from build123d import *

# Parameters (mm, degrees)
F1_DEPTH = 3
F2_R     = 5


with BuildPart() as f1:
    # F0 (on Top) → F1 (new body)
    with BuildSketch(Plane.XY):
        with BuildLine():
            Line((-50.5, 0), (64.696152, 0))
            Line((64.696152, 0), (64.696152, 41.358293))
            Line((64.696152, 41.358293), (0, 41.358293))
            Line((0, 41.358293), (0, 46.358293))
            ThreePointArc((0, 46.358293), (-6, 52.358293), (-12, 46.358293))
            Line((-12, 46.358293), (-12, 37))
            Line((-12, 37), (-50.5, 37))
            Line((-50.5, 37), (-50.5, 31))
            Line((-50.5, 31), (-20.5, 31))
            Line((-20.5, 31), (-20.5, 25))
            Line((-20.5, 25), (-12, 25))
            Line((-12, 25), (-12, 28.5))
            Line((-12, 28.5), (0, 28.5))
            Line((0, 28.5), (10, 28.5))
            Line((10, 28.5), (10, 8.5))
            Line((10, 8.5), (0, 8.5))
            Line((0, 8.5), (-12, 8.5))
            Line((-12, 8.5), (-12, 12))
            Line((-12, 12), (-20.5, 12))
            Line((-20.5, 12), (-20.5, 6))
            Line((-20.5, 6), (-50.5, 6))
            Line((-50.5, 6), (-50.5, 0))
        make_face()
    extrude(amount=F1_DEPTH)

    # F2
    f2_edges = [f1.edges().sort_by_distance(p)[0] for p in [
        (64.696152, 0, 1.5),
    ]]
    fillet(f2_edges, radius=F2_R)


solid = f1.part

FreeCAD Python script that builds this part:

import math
import FreeCAD as App
import Part
import Sketcher
Q = App.Units.Quantity


def edges_at(feature, points):
    """Names of the edges that pass closest to the given points."""
    edges = feature.Shape.Edges
    near = lambda p: min(range(len(edges)), key=lambda i: edges[i].distToShape(Part.Vertex(*p))[0])
    return sorted({f"Edge{near(p) + 1}" for p in points})

doc = App.newDocument("Part")
params = doc.addObject("Spreadsheet::Sheet", "Params")
for row, (alias, value) in enumerate([
    ("sketch1_radius", "6 mm"),
    ("sketch1_width", "30 mm"),
    ("sketch1_width2", "22 mm"),
    ("sketch1_height", "5 mm"),
    ("sketch1_height2", "6 mm"),
    ("pad1_length", "3 mm"),
    ("fillet_radius", "5 mm"),
], start=1):
    params.set(f"A{row}", alias)
    params.set(f"B{row}", "=" + value)
    params.setAlias(f"B{row}", alias)

body = doc.addObject("PartDesign::Body", "Body")

# Sketch on XY plane
sketch1 = body.newObject("Sketcher::SketchObject", "Sketch")
sketch1.AttachmentSupport = (doc.getObject("XY_Plane"), [""])
sketch1.MapMode = "FlatFace"
sketch1.addGeometry(Part.LineSegment(App.Vector(-50.5, 0, 0), App.Vector(64.7, 0, 0)), False)
sketch1.addGeometry(Part.LineSegment(App.Vector(64.7, 0, 0), App.Vector(64.7, 41.4, 0)), False)
sketch1.addGeometry(Part.LineSegment(App.Vector(64.7, 41.4, 0), App.Vector(0, 41.4, 0)), False)
sketch1.addGeometry(Part.LineSegment(App.Vector(0, 41.4, 0), App.Vector(0, 46.4, 0)), False)
sketch1.addGeometry(Part.ArcOfCircle(Part.Circle(App.Vector(-6, 46.4, 0), App.Vector(0, 0, 1), 6), math.radians(0), math.radians(180)), False)
sketch1.addGeometry(Part.LineSegment(App.Vector(-12, 46.4, 0), App.Vector(-12, 37, 0)), False)
sketch1.addGeometry(Part.LineSegment(App.Vector(-12, 37, 0), App.Vector(-50.5, 37, 0)), False)
sketch1.addGeometry(Part.LineSegment(App.Vector(-50.5, 37, 0), App.Vector(-50.5, 31, 0)), False)
sketch1.addGeometry(Part.LineSegment(App.Vector(-50.5, 31, 0), App.Vector(-20.5, 31, 0)), False)
sketch1.addGeometry(Part.LineSegment(App.Vector(-20.5, 31, 0), App.Vector(-20.5, 25, 0)), False)
sketch1.addGeometry(Part.LineSegment(App.Vector(-20.5, 25, 0), App.Vector(-12, 25, 0)), False)
sketch1.addGeometry(Part.LineSegment(App.Vector(-12, 25, 0), App.Vector(-12, 28.5, 0)), False)
sketch1.addGeometry(Part.LineSegment(App.Vector(-12, 28.5, 0), App.Vector(10, 28.5, 0)), False)
sketch1.addGeometry(Part.LineSegment(App.Vector(10, 28.5, 0), App.Vector(10, 8.5, 0)), False)
sketch1.addGeometry(Part.LineSegment(App.Vector(10, 8.5, 0), App.Vector(-12, 8.5, 0)), False)
sketch1.addGeometry(Part.LineSegment(App.Vector(-12, 8.5, 0), App.Vector(-12, 12, 0)), False)
sketch1.addGeometry(Part.LineSegment(App.Vector(-12, 12, 0), App.Vector(-20.5, 12, 0)), False)
sketch1.addGeometry(Part.LineSegment(App.Vector(-20.5, 12, 0), App.Vector(-20.5, 6, 0)), False)
sketch1.addGeometry(Part.LineSegment(App.Vector(-20.5, 6, 0), App.Vector(-50.5, 6, 0)), False)
sketch1.addGeometry(Part.LineSegment(App.Vector(-50.5, 6, 0), App.Vector(-50.5, 0, 0)), False)
sketch1.addConstraint(Sketcher.Constraint("Coincident", 0, 2, 1, 1))
sketch1.addConstraint(Sketcher.Constraint("Coincident", 1, 2, 2, 1))
sketch1.addConstraint(Sketcher.Constraint("Coincident", 2, 2, 3, 1))
sketch1.addConstraint(Sketcher.Constraint("Tangent", 3, 2, 4, 1))
sketch1.addConstraint(Sketcher.Constraint("Tangent", 4, 2, 5, 1))
sketch1.addConstraint(Sketcher.Constraint("Coincident", 5, 2, 6, 1))
sketch1.addConstraint(Sketcher.Constraint("Coincident", 6, 2, 7, 1))
sketch1.addConstraint(Sketcher.Constraint("Coincident", 7, 2, 8, 1))
sketch1.addConstraint(Sketcher.Constraint("Coincident", 8, 2, 9, 1))
sketch1.addConstraint(Sketcher.Constraint("Coincident", 9, 2, 10, 1))
sketch1.addConstraint(Sketcher.Constraint("Coincident", 10, 2, 11, 1))
sketch1.addConstraint(Sketcher.Constraint("Coincident", 11, 2, 12, 1))
sketch1.addConstraint(Sketcher.Constraint("Coincident", 12, 2, 13, 1))
sketch1.addConstraint(Sketcher.Constraint("Coincident", 13, 2, 14, 1))
sketch1.addConstraint(Sketcher.Constraint("Coincident", 14, 2, 15, 1))
sketch1.addConstraint(Sketcher.Constraint("Coincident", 15, 2, 16, 1))
sketch1.addConstraint(Sketcher.Constraint("Coincident", 16, 2, 17, 1))
sketch1.addConstraint(Sketcher.Constraint("Coincident", 17, 2, 18, 1))
sketch1.addConstraint(Sketcher.Constraint("Coincident", 18, 2, 19, 1))
sketch1.addConstraint(Sketcher.Constraint("Coincident", 19, 2, 0, 1))
sketch1.addConstraint(Sketcher.Constraint("Horizontal", 0))
sketch1.addConstraint(Sketcher.Constraint("Vertical", 1))
sketch1.addConstraint(Sketcher.Constraint("Horizontal", 2))
sketch1.addConstraint(Sketcher.Constraint("Vertical", 3))
sketch1.addConstraint(Sketcher.Constraint("Vertical", 5))
sketch1.addConstraint(Sketcher.Constraint("Horizontal", 6))
sketch1.addConstraint(Sketcher.Constraint("Vertical", 7))
sketch1.addConstraint(Sketcher.Constraint("Horizontal", 8))
sketch1.addConstraint(Sketcher.Constraint("Vertical", 9))
sketch1.addConstraint(Sketcher.Constraint("Horizontal", 10))
sketch1.addConstraint(Sketcher.Constraint("Vertical", 11))
sketch1.addConstraint(Sketcher.Constraint("Horizontal", 12))
sketch1.addConstraint(Sketcher.Constraint("Vertical", 13))
sketch1.addConstraint(Sketcher.Constraint("Horizontal", 14))
sketch1.addConstraint(Sketcher.Constraint("Vertical", 15))
sketch1.addConstraint(Sketcher.Constraint("Horizontal", 16))
sketch1.addConstraint(Sketcher.Constraint("Vertical", 17))
sketch1.addConstraint(Sketcher.Constraint("Horizontal", 18))
sketch1.addConstraint(Sketcher.Constraint("Vertical", 19))
sketch1.addConstraint(Sketcher.Constraint("PointOnObject", 0, 2, -1))
sketch1.addConstraint(Sketcher.Constraint("PointOnObject", 2, 2, -2))
sketch1.addConstraint(Sketcher.Constraint("Vertical", 5, 2, 10, 2))
sketch1.addConstraint(Sketcher.Constraint("Vertical", 11, 2, 14, 2))
sketch1.addConstraint(Sketcher.Constraint("Vertical", 9, 2, 16, 2))
sketch1.addConstraint(Sketcher.Constraint("Vertical", 7, 2, 18, 2))
sketch1.addConstraint(Sketcher.Constraint("Equal", 7, 9))
sketch1.addConstraint(Sketcher.Constraint("Equal", 11, 15))
sketch1.addConstraint(Sketcher.Constraint("Equal", 9, 17))
sketch1.addConstraint(Sketcher.Constraint("Equal", 17, 19))
sketch1.addConstraint(Sketcher.Constraint("Radius", 4, Q("6 mm")))
sketch1.addConstraint(Sketcher.Constraint("DistanceX", 8, 1, 8, 2, Q("30 mm")))
sketch1.addConstraint(Sketcher.Constraint("DistanceX", 12, 1, 12, 2, Q("22 mm")))
sketch1.addConstraint(Sketcher.Constraint("DistanceY", 3, 1, 3, 2, Q("5 mm")))
sketch1.addConstraint(Sketcher.Constraint("DistanceY", 7, 2, 7, 1, Q("6 mm")))
sketch1.addConstraint(Sketcher.Constraint("DistanceY", 13, 2, 13, 1, Q("20 mm")))
sketch1.addConstraint(Sketcher.Constraint("DistanceX", 6, 2, 6, 1, Q("38.5 mm")))
sketch1.addConstraint(Sketcher.Constraint("DistanceY", 11, 1, 11, 2, Q("3.5 mm")))
sketch1.addConstraint(Sketcher.Constraint("DistanceX", 0, 1, 0, 2, Q("115.196152 mm")))
sketch1.addConstraint(Sketcher.Constraint("DistanceY", 1, 1, 1, 2, Q("41.358293 mm")))
sketch1.setExpression("Constraints[49]", "Params.sketch1_radius")
sketch1.setExpression("Constraints[50]", "Params.sketch1_width")
sketch1.setExpression("Constraints[51]", "Params.sketch1_width2")
sketch1.setExpression("Constraints[52]", "Params.sketch1_height")
sketch1.setExpression("Constraints[53]", "Params.sketch1_height2")
pad1 = body.newObject("PartDesign::Pad", "Pad")
pad1.Profile = sketch1
pad1.setExpression("Length", "Params.pad1_length")
doc.recompute()

fillet = body.newObject("PartDesign::Fillet", "Fillet")
fillet.Base = (pad1, edges_at(pad1, [(64.696, 0, 1.5)]))
fillet.setExpression("Radius", "Params.fillet_radius")

doc.recompute()
